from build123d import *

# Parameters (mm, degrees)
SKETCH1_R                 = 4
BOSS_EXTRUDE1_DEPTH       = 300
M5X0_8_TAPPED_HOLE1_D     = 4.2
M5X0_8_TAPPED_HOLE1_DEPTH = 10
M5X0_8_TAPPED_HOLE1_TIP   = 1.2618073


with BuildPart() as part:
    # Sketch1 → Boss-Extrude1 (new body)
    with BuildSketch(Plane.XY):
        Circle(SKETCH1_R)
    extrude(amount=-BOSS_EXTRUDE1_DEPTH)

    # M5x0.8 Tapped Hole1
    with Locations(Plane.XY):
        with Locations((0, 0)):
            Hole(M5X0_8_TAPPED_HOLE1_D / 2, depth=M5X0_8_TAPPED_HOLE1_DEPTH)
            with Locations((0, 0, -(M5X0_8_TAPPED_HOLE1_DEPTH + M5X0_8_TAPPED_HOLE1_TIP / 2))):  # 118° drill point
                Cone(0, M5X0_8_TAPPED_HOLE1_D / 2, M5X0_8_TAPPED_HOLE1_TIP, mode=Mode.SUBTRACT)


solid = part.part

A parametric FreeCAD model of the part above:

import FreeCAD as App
import Part
import Sketcher
Q = App.Units.Quantity

doc = App.newDocument("Part")
body = doc.addObject("PartDesign::Body", "Body")

sketch1 = doc.addObject("Sketcher::SketchObject", "Sketch")
body.addObject(sketch1)
sketch1.AttachmentSupport = (doc.XY_Plane, [""])
sketch1.MapMode = "FlatFace"
sketch1.addGeometry(Part.Circle(App.Vector(0, 0, 0), App.Vector(0, 0, 1), 4), False)
sketch1.addConstraint([
    Sketcher.Constraint("Coincident", 0, 3, -1, 1),
    Sketcher.Constraint("Diameter", 0, Q("8 mm")),
])
pad1 = doc.addObject("PartDesign::Pad", "Pad")
body.addObject(pad1)
pad1.Profile = sketch1
pad1.Length = 300
pad1.Reversed = True

sketch2 = doc.addObject("Sketcher::SketchObject", "Sketch001")
body.addObject(sketch2)
sketch2.AttachmentSupport = (doc.XY_Plane, [""])
sketch2.MapMode = "FlatFace"
sketch2.addGeometry(Part.Circle(App.Vector(0, 0, 0), App.Vector(0, 0, 1), 2.1), False)
sketch2.addConstraint([
    Sketcher.Constraint("Coincident", 0, 3, -1, 1),
    Sketcher.Constraint("Diameter", 0, Q("4.2 mm")),
])
doc.recompute()
hole = doc.addObject("PartDesign::Hole", "Hole")
body.addObject(hole)
hole.Profile = sketch2
hole.ThreadType = "None"
hole.Diameter = 4.2
hole.DepthType = "Dimension"
hole.Depth = 10
hole.DrillPoint = "Angled"
hole.DrillPointAngle = 118

doc.recompute()
